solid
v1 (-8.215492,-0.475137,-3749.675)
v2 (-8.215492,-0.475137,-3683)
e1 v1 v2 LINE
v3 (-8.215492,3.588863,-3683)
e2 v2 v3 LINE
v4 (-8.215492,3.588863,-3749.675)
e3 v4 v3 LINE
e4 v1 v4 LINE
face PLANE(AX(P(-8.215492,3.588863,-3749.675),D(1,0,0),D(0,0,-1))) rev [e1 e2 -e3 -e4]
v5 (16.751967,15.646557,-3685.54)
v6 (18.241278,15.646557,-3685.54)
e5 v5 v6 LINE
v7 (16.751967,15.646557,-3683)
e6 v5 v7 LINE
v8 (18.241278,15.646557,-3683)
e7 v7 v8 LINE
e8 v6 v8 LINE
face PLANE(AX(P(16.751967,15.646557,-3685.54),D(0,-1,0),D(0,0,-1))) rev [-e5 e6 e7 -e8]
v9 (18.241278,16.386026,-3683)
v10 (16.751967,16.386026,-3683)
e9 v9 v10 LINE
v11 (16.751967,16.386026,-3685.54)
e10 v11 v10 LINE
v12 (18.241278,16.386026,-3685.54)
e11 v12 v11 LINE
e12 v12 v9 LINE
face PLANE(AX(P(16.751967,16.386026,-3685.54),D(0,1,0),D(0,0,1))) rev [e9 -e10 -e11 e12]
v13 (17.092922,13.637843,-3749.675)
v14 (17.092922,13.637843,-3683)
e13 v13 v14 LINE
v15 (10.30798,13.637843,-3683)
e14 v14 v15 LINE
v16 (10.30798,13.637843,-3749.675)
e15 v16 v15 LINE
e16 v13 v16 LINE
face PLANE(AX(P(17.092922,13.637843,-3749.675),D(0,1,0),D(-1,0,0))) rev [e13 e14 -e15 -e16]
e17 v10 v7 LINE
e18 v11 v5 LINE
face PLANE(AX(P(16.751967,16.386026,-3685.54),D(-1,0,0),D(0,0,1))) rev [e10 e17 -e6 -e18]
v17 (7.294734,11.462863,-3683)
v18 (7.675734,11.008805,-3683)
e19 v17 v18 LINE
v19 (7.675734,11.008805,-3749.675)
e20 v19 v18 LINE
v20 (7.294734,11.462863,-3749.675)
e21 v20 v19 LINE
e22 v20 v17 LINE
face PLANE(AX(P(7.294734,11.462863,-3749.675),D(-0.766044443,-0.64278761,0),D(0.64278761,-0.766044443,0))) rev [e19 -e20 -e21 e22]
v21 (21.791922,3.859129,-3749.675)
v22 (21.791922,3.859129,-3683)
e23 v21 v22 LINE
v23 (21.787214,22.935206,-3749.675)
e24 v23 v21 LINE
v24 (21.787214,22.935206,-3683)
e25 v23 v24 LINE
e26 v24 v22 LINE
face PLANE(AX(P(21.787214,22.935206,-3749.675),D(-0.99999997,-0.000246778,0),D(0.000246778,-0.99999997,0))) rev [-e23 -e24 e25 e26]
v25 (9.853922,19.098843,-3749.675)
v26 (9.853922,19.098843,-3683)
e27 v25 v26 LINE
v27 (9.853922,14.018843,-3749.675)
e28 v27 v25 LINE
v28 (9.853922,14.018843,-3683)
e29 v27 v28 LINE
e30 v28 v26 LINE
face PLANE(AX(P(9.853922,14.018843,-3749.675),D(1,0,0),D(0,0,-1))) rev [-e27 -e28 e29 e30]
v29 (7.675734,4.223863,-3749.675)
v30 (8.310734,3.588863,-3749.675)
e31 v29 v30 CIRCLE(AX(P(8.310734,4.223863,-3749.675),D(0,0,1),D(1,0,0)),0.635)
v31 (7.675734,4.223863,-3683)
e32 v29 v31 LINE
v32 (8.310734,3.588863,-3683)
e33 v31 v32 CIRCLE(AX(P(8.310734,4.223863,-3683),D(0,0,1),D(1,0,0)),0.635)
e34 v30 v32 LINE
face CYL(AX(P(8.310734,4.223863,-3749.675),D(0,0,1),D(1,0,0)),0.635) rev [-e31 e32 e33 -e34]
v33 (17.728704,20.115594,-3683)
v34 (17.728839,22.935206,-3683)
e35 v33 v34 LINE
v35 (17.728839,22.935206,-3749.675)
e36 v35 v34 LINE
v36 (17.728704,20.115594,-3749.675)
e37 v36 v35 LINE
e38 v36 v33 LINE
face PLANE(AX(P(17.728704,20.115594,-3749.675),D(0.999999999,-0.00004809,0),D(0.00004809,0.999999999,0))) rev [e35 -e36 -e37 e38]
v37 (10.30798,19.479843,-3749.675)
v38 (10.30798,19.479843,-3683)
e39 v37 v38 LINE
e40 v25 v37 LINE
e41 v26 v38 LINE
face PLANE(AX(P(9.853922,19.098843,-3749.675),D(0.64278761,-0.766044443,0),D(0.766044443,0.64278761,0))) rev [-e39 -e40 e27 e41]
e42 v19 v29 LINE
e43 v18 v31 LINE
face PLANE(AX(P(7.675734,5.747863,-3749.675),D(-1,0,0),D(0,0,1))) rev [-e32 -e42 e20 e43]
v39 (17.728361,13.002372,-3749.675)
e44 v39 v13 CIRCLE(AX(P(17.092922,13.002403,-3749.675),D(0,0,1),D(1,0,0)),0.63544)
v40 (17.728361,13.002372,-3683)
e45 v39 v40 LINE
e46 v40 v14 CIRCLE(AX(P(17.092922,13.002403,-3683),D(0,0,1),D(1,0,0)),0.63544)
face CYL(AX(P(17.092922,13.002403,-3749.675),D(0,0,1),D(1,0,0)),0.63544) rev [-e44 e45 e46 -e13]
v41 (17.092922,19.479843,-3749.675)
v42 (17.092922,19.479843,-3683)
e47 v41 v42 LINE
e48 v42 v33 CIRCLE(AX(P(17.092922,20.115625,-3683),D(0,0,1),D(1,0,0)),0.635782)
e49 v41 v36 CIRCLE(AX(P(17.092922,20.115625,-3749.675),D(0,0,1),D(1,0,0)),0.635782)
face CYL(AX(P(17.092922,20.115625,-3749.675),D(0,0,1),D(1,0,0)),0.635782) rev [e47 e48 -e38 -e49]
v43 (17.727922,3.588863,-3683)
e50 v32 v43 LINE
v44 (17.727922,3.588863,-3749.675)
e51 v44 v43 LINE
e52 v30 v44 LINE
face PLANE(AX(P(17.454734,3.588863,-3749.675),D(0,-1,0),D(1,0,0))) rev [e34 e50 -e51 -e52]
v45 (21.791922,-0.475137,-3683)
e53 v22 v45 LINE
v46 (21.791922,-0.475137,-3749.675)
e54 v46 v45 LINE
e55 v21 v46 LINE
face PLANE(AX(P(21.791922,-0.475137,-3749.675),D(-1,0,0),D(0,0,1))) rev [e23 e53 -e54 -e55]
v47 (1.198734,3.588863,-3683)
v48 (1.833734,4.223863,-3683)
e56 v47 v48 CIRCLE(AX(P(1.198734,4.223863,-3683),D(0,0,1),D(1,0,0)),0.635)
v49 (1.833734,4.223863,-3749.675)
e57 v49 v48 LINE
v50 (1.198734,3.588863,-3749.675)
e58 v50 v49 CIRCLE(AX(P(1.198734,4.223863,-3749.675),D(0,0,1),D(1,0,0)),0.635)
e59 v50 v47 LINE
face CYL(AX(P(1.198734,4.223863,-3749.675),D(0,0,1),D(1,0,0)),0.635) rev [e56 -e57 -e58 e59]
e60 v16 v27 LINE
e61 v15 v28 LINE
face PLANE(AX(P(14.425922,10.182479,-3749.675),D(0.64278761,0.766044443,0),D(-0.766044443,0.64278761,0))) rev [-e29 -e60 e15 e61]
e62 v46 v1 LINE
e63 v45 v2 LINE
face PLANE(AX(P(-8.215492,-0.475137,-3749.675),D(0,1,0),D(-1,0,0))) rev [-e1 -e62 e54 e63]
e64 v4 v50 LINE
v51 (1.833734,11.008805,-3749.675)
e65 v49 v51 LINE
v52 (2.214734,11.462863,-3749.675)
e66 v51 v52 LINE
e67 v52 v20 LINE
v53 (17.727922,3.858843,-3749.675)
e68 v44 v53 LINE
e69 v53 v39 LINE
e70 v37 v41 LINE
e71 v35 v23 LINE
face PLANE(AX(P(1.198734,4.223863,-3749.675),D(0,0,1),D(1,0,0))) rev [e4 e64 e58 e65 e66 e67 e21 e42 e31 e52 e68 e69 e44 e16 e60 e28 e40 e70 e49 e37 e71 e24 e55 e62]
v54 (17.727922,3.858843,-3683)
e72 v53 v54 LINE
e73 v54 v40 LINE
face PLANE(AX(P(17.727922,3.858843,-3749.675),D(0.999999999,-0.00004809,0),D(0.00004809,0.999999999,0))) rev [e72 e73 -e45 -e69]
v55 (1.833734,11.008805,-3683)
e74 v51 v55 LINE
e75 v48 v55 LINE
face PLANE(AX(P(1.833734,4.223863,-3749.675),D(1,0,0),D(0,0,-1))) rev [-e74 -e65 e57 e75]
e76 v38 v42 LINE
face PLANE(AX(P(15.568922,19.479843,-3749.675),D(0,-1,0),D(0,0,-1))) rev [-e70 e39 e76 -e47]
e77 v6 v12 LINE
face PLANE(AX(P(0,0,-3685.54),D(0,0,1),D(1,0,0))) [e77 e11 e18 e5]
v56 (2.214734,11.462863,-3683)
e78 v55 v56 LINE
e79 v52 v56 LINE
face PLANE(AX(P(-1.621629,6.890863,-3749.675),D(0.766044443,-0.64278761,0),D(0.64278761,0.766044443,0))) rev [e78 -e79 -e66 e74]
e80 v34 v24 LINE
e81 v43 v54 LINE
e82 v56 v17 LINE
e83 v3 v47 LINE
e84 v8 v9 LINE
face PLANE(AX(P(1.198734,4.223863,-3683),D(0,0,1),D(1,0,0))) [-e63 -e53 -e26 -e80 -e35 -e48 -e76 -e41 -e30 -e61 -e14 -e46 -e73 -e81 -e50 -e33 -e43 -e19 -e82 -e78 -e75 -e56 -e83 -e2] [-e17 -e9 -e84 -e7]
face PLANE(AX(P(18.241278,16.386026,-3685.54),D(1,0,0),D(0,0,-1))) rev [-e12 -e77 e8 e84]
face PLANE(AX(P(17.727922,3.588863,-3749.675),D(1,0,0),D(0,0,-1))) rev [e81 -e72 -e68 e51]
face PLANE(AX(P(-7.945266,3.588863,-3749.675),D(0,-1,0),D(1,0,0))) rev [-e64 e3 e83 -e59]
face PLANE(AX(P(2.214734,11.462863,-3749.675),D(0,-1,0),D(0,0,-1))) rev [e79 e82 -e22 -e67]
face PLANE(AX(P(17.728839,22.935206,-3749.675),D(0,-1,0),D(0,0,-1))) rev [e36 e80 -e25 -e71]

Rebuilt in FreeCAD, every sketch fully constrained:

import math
import FreeCAD as App
import Part
import Sketcher
from FreeCAD import Vector
Q = App.Units.Quantity

doc = App.newDocument("Part")
body = doc.addObject("PartDesign::Body", "Body")

sketch1 = doc.addObject("Sketcher::SketchObject", "Sketch")
body.addObject(sketch1)
sketch1.AttachmentSupport = (doc.XY_Plane, [""])
sketch1.MapMode = "FlatFace"
sketch1.AttachmentOffset = App.Placement(Vector(0, 0, -145 * 25.4), App.Rotation())
sketch1.addGeometry([
    Part.ArcOfCircle(Part.Circle(Vector(1.2, 4.22, 0), Vector(0, 0, 1), 0.64), math.radians(-90), math.radians(0)),
    Part.LineSegment(Vector(1.83, 4.22, 0), Vector(1.83, 5.75, 0)),
    Part.ArcOfCircle(Part.Circle(Vector(1.2, 5.75, 0), Vector(0, 0, 1), 0.63), math.radians(0), math.radians(90)),
    Part.LineSegment(Vector(1.2, 6.38, 0), Vector(-1.62, 6.38, 0)),
    Part.LineSegment(Vector(-1.62, 6.38, 0), Vector(-1.62, 6.89, 0)),
    Part.LineSegment(Vector(-1.62, 6.89, 0), Vector(2.21, 11.46, 0)),
    Part.LineSegment(Vector(2.21, 11.46, 0), Vector(7.29, 11.46, 0)),
    Part.LineSegment(Vector(7.29, 11.46, 0), Vector(11.13, 6.89, 0)),
    Part.LineSegment(Vector(11.13, 6.89, 0), Vector(11.13, 6.38, 0)),
    Part.LineSegment(Vector(11.13, 6.38, 0), Vector(8.31, 6.38, 0)),
    Part.ArcOfCircle(Part.Circle(Vector(8.31, 5.75, 0), Vector(0, 0, 1), 0.63), math.radians(90), math.radians(180)),
    Part.LineSegment(Vector(7.68, 5.75, 0), Vector(7.68, 4.22, 0)),
    Part.ArcOfCircle(Part.Circle(Vector(8.31, 4.22, 0), Vector(0, 0, 1), 0.64), math.radians(180), math.radians(270)),
    Part.LineSegment(Vector(8.31, 3.59, 0), Vector(17.73, 3.59, 0)),
    Part.LineSegment(Vector(17.73, 3.59, 0), Vector(17.73, 3.86, 0)),
    Part.LineSegment(Vector(17.73, 3.86, 0), Vector(17.73, 13, 0)),
    Part.ArcOfCircle(Part.Circle(Vector(17.09, 13, 0), Vector(0, 0, 1), 0.64), math.radians(0), math.radians(90)),
    Part.LineSegment(Vector(17.09, 13.64, 0), Vector(15.57, 13.64, 0)),
    Part.ArcOfCircle(Part.Circle(Vector(15.57, 13, 0), Vector(0, 0, 1), 0.64), math.radians(90), math.radians(180)),
    Part.LineSegment(Vector(14.93, 13, 0), Vector(14.93, 10.18, 0)),
    Part.LineSegment(Vector(14.93, 10.18, 0), Vector(14.43, 10.18, 0)),
    Part.LineSegment(Vector(14.43, 10.18, 0), Vector(9.85, 14.02, 0)),
    Part.LineSegment(Vector(9.85, 14.02, 0), Vector(9.85, 19.1, 0)),
    Part.LineSegment(Vector(9.85, 19.1, 0), Vector(14.43, 22.94, 0)),
    Part.LineSegment(Vector(14.43, 22.94, 0), Vector(14.93, 22.94, 0)),
    Part.LineSegment(Vector(14.93, 22.94, 0), Vector(14.93, 20.11, 0)),
    Part.ArcOfCircle(Part.Circle(Vector(15.57, 20.11, 0), Vector(0, 0, 1), 0.64), math.radians(180), math.radians(270)),
    Part.LineSegment(Vector(15.57, 19.48, 0), Vector(17.09, 19.48, 0)),
    Part.ArcOfCircle(Part.Circle(Vector(17.09, 20.12, 0), Vector(0, 0, 1), 0.64), math.radians(-90), math.radians(0)),
    Part.LineSegment(Vector(17.73, 20.12, 0), Vector(17.73, 22.94, 0)),
    Part.LineSegment(Vector(17.73, 22.94, 0), Vector(21.79, 22.94, 0)),
    Part.LineSegment(Vector(21.79, 22.94, 0), Vector(21.79, 3.86, 0)),
    Part.LineSegment(Vector(21.79, 3.86, 0), Vector(21.79, -0.48, 0)),
    Part.LineSegment(Vector(21.79, -0.48, 0), Vector(-8.22, -0.48, 0)),
    Part.LineSegment(Vector(-8.22, -0.48, 0), Vector(-8.22, 3.59, 0)),
    Part.LineSegment(Vector(-8.22, 3.59, 0), Vector(1.2, 3.59, 0)),
], False)
sketch1.addConstraint([
    Sketcher.Constraint("Tangent", 0, 2, 1, 1),
    Sketcher.Constraint("Tangent", 1, 2, 2, 1),
    Sketcher.Constraint("Tangent", 2, 2, 3, 1),
    Sketcher.Constraint("Coincident", 3, 2, 4, 1),
    Sketcher.Constraint("Coincident", 4, 2, 5, 1),
    Sketcher.Constraint("Coincident", 5, 2, 6, 1),
    Sketcher.Constraint("Coincident", 6, 2, 7, 1),
    Sketcher.Constraint("Coincident", 7, 2, 8, 1),
    Sketcher.Constraint("Coincident", 8, 2, 9, 1),
    Sketcher.Constraint("Tangent", 9, 2, 10, 1),
    Sketcher.Constraint("Tangent", 10, 2, 11, 1),
    Sketcher.Constraint("Tangent", 11, 2, 12, 1),
    Sketcher.Constraint("Tangent", 12, 2, 13, 1),
    Sketcher.Constraint("Coincident", 13, 2, 14, 1),
    Sketcher.Constraint("Coincident", 14, 2, 15, 1),
    Sketcher.Constraint("Tangent", 15, 2, 16, 1),
    Sketcher.Constraint("Tangent", 16, 2, 17, 1),
    Sketcher.Constraint("Tangent", 17, 2, 18, 1),
    Sketcher.Constraint("Tangent", 18, 2, 19, 1),
    Sketcher.Constraint("Coincident", 19, 2, 20, 1),
    Sketcher.Constraint("Coincident", 20, 2, 21, 1),
    Sketcher.Constraint("Coincident", 21, 2, 22, 1),
    Sketcher.Constraint("Coincident", 22, 2, 23, 1),
    Sketcher.Constraint("Coincident", 23, 2, 24, 1),
    Sketcher.Constraint("Coincident", 24, 2, 25, 1),
    Sketcher.Constraint("Tangent", 25, 2, 26, 1),
    Sketcher.Constraint("Tangent", 26, 2, 27, 1),
    Sketcher.Constraint("Tangent", 27, 2, 28, 1),
    Sketcher.Constraint("Tangent", 28, 2, 29, 1),
    Sketcher.Constraint("Coincident", 29, 2, 30, 1),
    Sketcher.Constraint("Coincident", 30, 2, 31, 1),
    Sketcher.Constraint("Coincident", 31, 2, 32, 1),
    Sketcher.Constraint("Coincident", 32, 2, 33, 1),
    Sketcher.Constraint("Coincident", 33, 2, 34, 1),
    Sketcher.Constraint("Coincident", 34, 2, 35, 1),
    Sketcher.Constraint("Tangent", 35, 2, 0, 1),
    Sketcher.Constraint("Vertical", 1),
    Sketcher.Constraint("Horizontal", 3),
    Sketcher.Constraint("Vertical", 4),
    Sketcher.Constraint("Horizontal", 6),
    Sketcher.Constraint("Vertical", 8),
    Sketcher.Constraint("Horizontal", 9),
    Sketcher.Constraint("Vertical", 11),
    Sketcher.Constraint("Horizontal", 13),
    Sketcher.Constraint("Vertical", 14),
    Sketcher.Constraint("Horizontal", 17),
    Sketcher.Constraint("Vertical", 19),
    Sketcher.Constraint("Horizontal", 20),
    Sketcher.Constraint("Vertical", 22),
    Sketcher.Constraint("Horizontal", 24),
    Sketcher.Constraint("Vertical", 25),
    Sketcher.Constraint("Horizontal", 27),
    Sketcher.Constraint("Horizontal", 30),
    Sketcher.Constraint("Vertical", 32),
    Sketcher.Constraint("Horizontal", 33),
    Sketcher.Constraint("Vertical", 34),
    Sketcher.Constraint("Horizontal", 35),
    Sketcher.Constraint("Equal", 0, 2),
    Sketcher.Constraint("Equal", 2, 10),
    Sketcher.Constraint("Equal", 10, 12),
    Sketcher.Constraint("Equal", 12, 18),
    Sketcher.Constraint("Equal", 18, 26),
    Sketcher.Constraint("Perpendicular", 5, 21),
    Sketcher.Constraint("Perpendicular", 7, 23),
    Sketcher.Constraint("Parallel", 15, 29),
    Sketcher.Constraint("Horizontal", 2, 3, 10, 3),
    Sketcher.Constraint("Horizontal", 0, 3, 12, 3),
    Sketcher.Constraint("Horizontal", 4, 2, 7, 2),
    Sketcher.Constraint("Horizontal", 24, 2, 29, 2),
    Sketcher.Constraint("Vertical", 18, 3, 26, 3),
    Sketcher.Constraint("Vertical", 16, 3, 28, 3),
    Sketcher.Constraint("Vertical", 20, 2, 23, 2),
    Sketcher.Constraint("Equal", 3, 9),
    Sketcher.Constraint("Equal", 27, 1),
    Sketcher.Constraint("Equal", 24, 4),
    Sketcher.Constraint("Equal", 9, 19),
    Sketcher.Constraint("Equal", 6, 22),
    Sketcher.Constraint("Equal", 19, 25),
    Sketcher.Constraint("Equal", 5, 7),
    Sketcher.Constraint("Equal", 7, 21),
    Sketcher.Constraint("DistanceX", 6, 1, 6, 2, Q("0.2 in")),
    Sketcher.Constraint("Angle", 5, Q("50 deg")),
    Sketcher.Constraint("Radius", 0, Q("0.025 in")),
    Sketcher.Constraint("DistanceX", 17, 2, 17, 1, Q("0.06 in")),
    Sketcher.Constraint("DistanceX", 20, 2, 20, 1, Q("0.02 in")),
    Sketcher.Constraint("DistanceY", 34, 1, 34, 2, Q("0.16 in")),
    Sketcher.Constraint("DistanceY", 2, 2, 5, 2, Q("0.2 in")),
    Sketcher.Constraint("DistanceX", 2, 3, 10, 3, Q("0.28 in")),
    Sketcher.Constraint("DistanceY", 14, 2, 18, 3, Q("0.36 in")),
    Sketcher.Constraint("DistanceX", 14, 2, 31, 2, Q("0.16 in")),
    Sketcher.Constraint("DistanceX", 19, 2, 31, 2, Q("0.27 in")),
    Sketcher.Constraint("Radius", 16, 0.63544),
    Sketcher.Constraint("Radius", 28, 0.635782),
    Sketcher.Constraint("DistanceY", 14, 1, 14, 2, 0.26998),
    Sketcher.Constraint("Distance", 31, 19.076078),
    Sketcher.Constraint("DistanceX", 13, 1, 13, 2, 9.417188),
    Sketcher.Constraint("DistanceX", 30, 1, 30, 2, 4.058375),
    Sketcher.Constraint("DistanceX", 33, 2, 33, 1, 30.007414),
    Sketcher.Constraint("DistanceX", -1, 1, 16, 3, 17.092922),
    Sketcher.Constraint("DistanceY", -1, 1, 19, 2, 10.182479),
])
pad1 = doc.addObject("PartDesign::Pad", "Pad")
body.addObject(pad1)
pad1.Profile = sketch1
pad1.Length = Q("2.625 in")
pad1.Reversed = True

sketch2 = doc.addObject("Sketcher::SketchObject", "Sketch001")
body.addObject(sketch2)
sketch2.AttachmentSupport = (doc.XY_Plane, [""])
sketch2.MapMode = "FlatFace"
sketch2.AttachmentOffset = App.Placement(Vector(0, 0, -145 * 25.4), App.Rotation())
sketch2.addGeometry([
    Part.LineSegment(Vector(11.1, 6.4, 0), Vector(11.1, 6.9, 0)),
    Part.LineSegment(Vector(11.1, 6.9, 0), Vector(7.7, 11, 0)),
    Part.LineSegment(Vector(7.7, 11, 0), Vector(7.7, 5.7, 0)),
    Part.ArcOfCircle(Part.Circle(Vector(8.3, 5.7, 0), Vector(0, 0, 1), 0.6), math.radians(90), math.radians(180)),
    Part.LineSegment(Vector(8.3, 6.4, 0), Vector(11.1, 6.4, 0)),
], False)
sketch2.addConstraint([
    Sketcher.Constraint("Coincident", 0, 2, 1, 1),
    Sketcher.Constraint("Coincident", 1, 2, 2, 1),
    Sketcher.Constraint("Tangent", 2, 2, 3, 2),
    Sketcher.Constraint("Tangent", 3, 1, 4, 1),
    Sketcher.Constraint("Coincident", 4, 2, 0, 1),
    Sketcher.Constraint("Vertical", 0),
    Sketcher.Constraint("Vertical", 2),
    Sketcher.Constraint("Horizontal", 4),
    Sketcher.Constraint("Angle", 1, Q("130 deg")),
    Sketcher.Constraint("Radius", 3, Q("0.025 in")),
    Sketcher.Constraint("DistanceY", 0, 1, 0, 2, Q("0.02 in")),
    Sketcher.Constraint("DistanceY", 2, 2, 2, 1, 5.260942),
    Sketcher.Constraint("DistanceX", -1, 1, 3, 3, 8.310734),
    Sketcher.Constraint("DistanceY", -1, 1, 3, 3, 5.747863),
])
pocket1 = doc.addObject("PartDesign::Pocket", "Pocket")
body.addObject(pocket1)
pocket1.Profile = sketch2
pocket1.Type = "UpToFirst"

sketch3 = doc.addObject("Sketcher::SketchObject", "Sketch002")
body.addObject(sketch3)
sketch3.AttachmentSupport = (doc.XY_Plane, [""])
sketch3.MapMode = "FlatFace"
sketch3.AttachmentOffset = App.Placement(Vector(0, 0, -145 * 25.4), App.Rotation())
sketch3.addGeometry([
    Part.LineSegment(Vector(1.8, 5.7, 0), Vector(1.8, 11, 0)),
    Part.LineSegment(Vector(1.8, 11, 0), Vector(-1.6, 6.9, 0)),
    Part.LineSegment(Vector(-1.6, 6.9, 0), Vector(-1.6, 6.4, 0)),
    Part.LineSegment(Vector(-1.6, 6.4, 0), Vector(1.2, 6.4, 0)),
    Part.ArcOfCircle(Part.Circle(Vector(1.2, 5.7, 0), Vector(0, 0, 1), 0.6), math.radians(0), math.radians(90)),
], False)
sketch3.addConstraint([
    Sketcher.Constraint("Coincident", 0, 2, 1, 1),
    Sketcher.Constraint("Coincident", 1, 2, 2, 1),
    Sketcher.Constraint("Coincident", 2, 2, 3, 1),
    Sketcher.Constraint("Tangent", 3, 2, 4, 2),
    Sketcher.Constraint("Tangent", 4, 1, 0, 1),
    Sketcher.Constraint("Vertical", 0),
    Sketcher.Constraint("Vertical", 2),
    Sketcher.Constraint("Horizontal", 3),
    Sketcher.Constraint("Angle", 1, Q("-130 deg")),
    Sketcher.Constraint("Radius", 4, Q("0.025 in")),
    Sketcher.Constraint("DistanceY", 2, 2, 2, 1, Q("0.02 in")),
    Sketcher.Constraint("DistanceY", 0, 1, 0, 2, 5.260942),
    Sketcher.Constraint("DistanceX", 1, 2, -1, 1, 1.621629),
    Sketcher.Constraint("DistanceY", -1, 1, 4, 3, 5.747863),
])
pocket2 = doc.addObject("PartDesign::Pocket", "Pocket001")
body.addObject(pocket2)
pocket2.Profile = sketch3
pocket2.Type = "UpToFirst"

sketch4 = doc.addObject("Sketcher::SketchObject", "Sketch003")
body.addObject(sketch4)
sketch4.AttachmentSupport = (doc.XY_Plane, [""])
sketch4.MapMode = "FlatFace"
sketch4.AttachmentOffset = App.Placement(Vector(0, 0, -145 * 25.4), App.Rotation())
sketch4.addGeometry([
    Part.LineSegment(Vector(10.3, 19.5, 0), Vector(15.6, 19.5, 0)),
    Part.ArcOfCircle(Part.Circle(Vector(15.6, 20.1, 0), Vector(0, 0, 1), 0.6), math.radians(180), math.radians(270)),
    Part.LineSegment(Vector(14.9, 20.1, 0), Vector(14.9, 22.9, 0)),
    Part.LineSegment(Vector(14.9, 22.9, 0), Vector(14.4, 22.9, 0)),
    Part.LineSegment(Vector(14.4, 22.9, 0), Vector(10.3, 19.5, 0)),
], False)
sketch4.addConstraint([
    Sketcher.Constraint("Tangent", 0, 2, 1, 2),
    Sketcher.Constraint("Tangent", 1, 1, 2, 1),
    Sketcher.Constraint("Coincident", 2, 2, 3, 1),
    Sketcher.Constraint("Coincident", 3, 2, 4, 1),
    Sketcher.Constraint("Coincident", 4, 2, 0, 1),
    Sketcher.Constraint("Horizontal", 0),
    Sketcher.Constraint("Vertical", 2),
    Sketcher.Constraint("Horizontal", 3),
    Sketcher.Constraint("Angle", 4, Q("-140 deg")),
    Sketcher.Constraint("Radius", 1, Q("0.025 in")),
    Sketcher.Constraint("DistanceX", 3, 2, 3, 1, Q("0.02 in")),
    Sketcher.Constraint("DistanceX", 0, 1, 0, 2, 5.260942),
    Sketcher.Constraint("DistanceX", -1, 1, 1, 3, 15.568922),
    Sketcher.Constraint("DistanceY", -1, 1, 1, 3, 20.114843),
])
pocket3 = doc.addObject("PartDesign::Pocket", "Pocket002")
body.addObject(pocket3)
pocket3.Profile = sketch4
pocket3.Type = "UpToFirst"

sketch5 = doc.addObject("Sketcher::SketchObject", "Sketch004")
body.addObject(sketch5)
sketch5.AttachmentSupport = (doc.XY_Plane, [""])
sketch5.MapMode = "FlatFace"
sketch5.AttachmentOffset = App.Placement(Vector(0, 0, -145 * 25.4), App.Rotation())
sketch5.addGeometry([
    Part.LineSegment(Vector(10.3, 13.6, 0), Vector(14.4, 10.2, 0)),
    Part.LineSegment(Vector(14.4, 10.2, 0), Vector(14.9, 10.2, 0)),
    Part.LineSegment(Vector(14.9, 10.2, 0), Vector(14.9, 13, 0)),
    Part.ArcOfCircle(Part.Circle(Vector(15.6, 13, 0), Vector(0, 0, 1), 0.6), math.radians(90), math.radians(180)),
    Part.LineSegment(Vector(15.6, 13.6, 0), Vector(10.3, 13.6, 0)),
], False)
sketch5.addConstraint([
    Sketcher.Constraint("Coincident", 0, 2, 1, 1),
    Sketcher.Constraint("Coincident", 1, 2, 2, 1),
    Sketcher.Constraint("Tangent", 2, 2, 3, 2),
    Sketcher.Constraint("Tangent", 3, 1, 4, 1),
    Sketcher.Constraint("Coincident", 4, 2, 0, 1),
    Sketcher.Constraint("Horizontal", 1),
    Sketcher.Constraint("Vertical", 2),
    Sketcher.Constraint("Horizontal", 4),
    Sketcher.Constraint("Angle", 0, Q("-40 deg")),
    Sketcher.Constraint("Radius", 3, Q("0.025 in")),
    Sketcher.Constraint("DistanceX", 1, 1, 1, 2, Q("0.02 in")),
    Sketcher.Constraint("DistanceX", 4, 2, 4, 1, 5.260942),
    Sketcher.Constraint("DistanceX", -1, 1, 3, 3, 15.568922),
    Sketcher.Constraint("DistanceY", -1, 1, 0, 2, 10.182479),
])
pocket4 = doc.addObject("PartDesign::Pocket", "Pocket003")
body.addObject(pocket4)
pocket4.Profile = sketch5
pocket4.Type = "UpToFirst"

sketch6 = doc.addObject("Sketcher::SketchObject", "Sketch005")
body.addObject(sketch6)
sketch6.AttachmentSupport = (doc.XY_Plane, [""])
sketch6.MapMode = "FlatFace"
sketch6.AttachmentOffset = App.Placement(Vector(0, 0, -145 * 25.4), App.Rotation())
sketch6.addGeometry([
    Part.LineSegment(Vector(16.8, 16.4, 0), Vector(16.8, 15.6, 0)),
    Part.LineSegment(Vector(16.8, 15.6, 0), Vector(18.2, 15.6, 0)),
    Part.LineSegment(Vector(18.2, 15.6, 0), Vector(18.2, 16.4, 0)),
    Part.LineSegment(Vector(18.2, 16.4, 0), Vector(16.8, 16.4, 0)),
], False)
sketch6.addConstraint([
    Sketcher.Constraint("Coincident", 0, 2, 1, 1),
    Sketcher.Constraint("Coincident", 1, 2, 2, 1),
    Sketcher.Constraint("Coincident", 2, 2, 3, 1),
    Sketcher.Constraint("Coincident", 3, 2, 0, 1),
    Sketcher.Constraint("Vertical", 0),
    Sketcher.Constraint("Horizontal", 1),
    Sketcher.Constraint("Vertical", 2),
    Sketcher.Constraint("Horizontal", 3),
    Sketcher.Constraint("DistanceX", 1, 1, 1, 2, 1.489311),
    Sketcher.Constraint("DistanceY", 0, 2, 0, 1, 0.73947),
    Sketcher.Constraint("DistanceX", -1, 1, 1, 2, 18.241278),
    Sketcher.Constraint("DistanceY", -1, 1, 0, 2, 15.646557),
])
pocket5 = doc.addObject("PartDesign::Pocket", "Pocket004")
body.addObject(pocket5)
pocket5.Profile = sketch6
pocket5.Length = Q("0.1 in")

doc.recompute()
